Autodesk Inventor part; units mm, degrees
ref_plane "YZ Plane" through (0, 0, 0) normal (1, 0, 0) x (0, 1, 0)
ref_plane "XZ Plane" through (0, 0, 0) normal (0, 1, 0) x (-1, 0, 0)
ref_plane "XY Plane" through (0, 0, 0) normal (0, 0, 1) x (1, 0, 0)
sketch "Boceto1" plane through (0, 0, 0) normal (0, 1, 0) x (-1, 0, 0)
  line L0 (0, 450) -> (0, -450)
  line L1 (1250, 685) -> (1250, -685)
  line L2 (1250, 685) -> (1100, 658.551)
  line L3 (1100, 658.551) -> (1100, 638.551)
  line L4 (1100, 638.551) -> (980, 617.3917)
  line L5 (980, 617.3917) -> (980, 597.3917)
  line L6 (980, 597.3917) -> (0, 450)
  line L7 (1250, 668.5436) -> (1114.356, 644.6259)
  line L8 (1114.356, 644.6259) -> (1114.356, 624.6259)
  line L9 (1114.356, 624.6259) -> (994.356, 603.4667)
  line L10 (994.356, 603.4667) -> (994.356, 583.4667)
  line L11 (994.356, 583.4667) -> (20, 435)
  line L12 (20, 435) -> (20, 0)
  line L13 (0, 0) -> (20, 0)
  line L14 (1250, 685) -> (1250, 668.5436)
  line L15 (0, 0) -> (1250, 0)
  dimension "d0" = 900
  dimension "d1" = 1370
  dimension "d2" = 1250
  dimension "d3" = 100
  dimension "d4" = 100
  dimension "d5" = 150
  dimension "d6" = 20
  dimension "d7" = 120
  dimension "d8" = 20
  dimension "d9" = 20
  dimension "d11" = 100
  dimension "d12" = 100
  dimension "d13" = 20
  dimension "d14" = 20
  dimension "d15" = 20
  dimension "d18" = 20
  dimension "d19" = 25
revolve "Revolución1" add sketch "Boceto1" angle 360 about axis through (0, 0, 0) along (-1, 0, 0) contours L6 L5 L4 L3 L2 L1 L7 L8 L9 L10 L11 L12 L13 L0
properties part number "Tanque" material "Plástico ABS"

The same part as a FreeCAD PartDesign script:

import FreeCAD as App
import Part
import Sketcher
from FreeCAD import Vector
Q = App.Units.Quantity

doc = App.newDocument("Part")
body = doc.addObject("PartDesign::Body", "Body")

sketch1 = body.newObject("Sketcher::SketchObject", "Sketch")
sketch1.AttachmentSupport = (doc.getObject("XZ_Plane"), [""])
sketch1.MapMode = "FlatFace"
sketch1.addGeometry(Part.LineSegment(Vector(-980, 597, 0), Vector(0, 450, 0)), False)
sketch1.addGeometry(Part.LineSegment(Vector(0, 450, 0), Vector(0, 0, 0)), False)
sketch1.addGeometry(Part.LineSegment(Vector(0, 0, 0), Vector(-20, 0, 0)), False)
sketch1.addGeometry(Part.LineSegment(Vector(-20, 0, 0), Vector(-20, 435, 0)), False)
sketch1.addGeometry(Part.LineSegment(Vector(-20, 435, 0), Vector(-994, 583, 0)), False)
sketch1.addGeometry(Part.LineSegment(Vector(-994, 583, 0), Vector(-994, 603, 0)), False)
sketch1.addGeometry(Part.LineSegment(Vector(-994, 603, 0), Vector(-1114, 625, 0)), False)
sketch1.addGeometry(Part.LineSegment(Vector(-1114, 625, 0), Vector(-1114, 645, 0)), False)
sketch1.addGeometry(Part.LineSegment(Vector(-1114, 645, 0), Vector(-1250, 669, 0)), False)
sketch1.addGeometry(Part.LineSegment(Vector(-1250, 669, 0), Vector(-1250, 685, 0)), False)
sketch1.addGeometry(Part.LineSegment(Vector(-1250, 685, 0), Vector(-1100, 659, 0)), False)
sketch1.addGeometry(Part.LineSegment(Vector(-1100, 659, 0), Vector(-1100, 639, 0)), False)
sketch1.addGeometry(Part.LineSegment(Vector(-1100, 639, 0), Vector(-980, 617, 0)), False)
sketch1.addGeometry(Part.LineSegment(Vector(-980, 617, 0), Vector(-980, 597, 0)), False)
sketch1.addConstraint(Sketcher.Constraint("Coincident", 0, 2, 1, 1))
sketch1.addConstraint(Sketcher.Constraint("Coincident", 1, 2, 2, 1))
sketch1.addConstraint(Sketcher.Constraint("Coincident", 2, 2, 3, 1))
sketch1.addConstraint(Sketcher.Constraint("Coincident", 3, 2, 4, 1))
sketch1.addConstraint(Sketcher.Constraint("Coincident", 4, 2, 5, 1))
sketch1.addConstraint(Sketcher.Constraint("Coincident", 5, 2, 6, 1))
sketch1.addConstraint(Sketcher.Constraint("Coincident", 6, 2, 7, 1))
sketch1.addConstraint(Sketcher.Constraint("Coincident", 7, 2, 8, 1))
sketch1.addConstraint(Sketcher.Constraint("Coincident", 8, 2, 9, 1))
sketch1.addConstraint(Sketcher.Constraint("Coincident", 9, 2, 10, 1))
sketch1.addConstraint(Sketcher.Constraint("Coincident", 10, 2, 11, 1))
sketch1.addConstraint(Sketcher.Constraint("Coincident", 11, 2, 12, 1))
sketch1.addConstraint(Sketcher.Constraint("Coincident", 12, 2, 13, 1))
sketch1.addConstraint(Sketcher.Constraint("Coincident", 13, 2, 0, 1))
sketch1.addConstraint(Sketcher.Constraint("Vertical", 1))
sketch1.addConstraint(Sketcher.Constraint("Horizontal", 2))
sketch1.addConstraint(Sketcher.Constraint("Vertical", 3))
sketch1.addConstraint(Sketcher.Constraint("Vertical", 5))
sketch1.addConstraint(Sketcher.Constraint("Vertical", 7))
sketch1.addConstraint(Sketcher.Constraint("Vertical", 9))
sketch1.addConstraint(Sketcher.Constraint("Vertical", 11))
sketch1.addConstraint(Sketcher.Constraint("Vertical", 13))
sketch1.addConstraint(Sketcher.Constraint("Coincident", 1, 2, -1, 1))
sketch1.addConstraint(Sketcher.Constraint("Parallel", 6, 8))
sketch1.addConstraint(Sketcher.Constraint("Parallel", 8, 10))
sketch1.addConstraint(Sketcher.Constraint("Parallel", 10, 12))
sketch1.addConstraint(Sketcher.Constraint("Equal", 2, 5))
sketch1.addConstraint(Sketcher.Constraint("Equal", 5, 7))
sketch1.addConstraint(Sketcher.Constraint("Equal", 7, 11))
sketch1.addConstraint(Sketcher.Constraint("Equal", 11, 13))
sketch1.addConstraint(Sketcher.Constraint("Equal", 6, 12))
sketch1.addConstraint(Sketcher.Constraint("DistanceX", 2, 2, 2, 1, 20.0))
sketch1.addConstraint(Sketcher.Constraint("DistanceX", 8, 2, -1, 1, 1250.0))
sketch1.addConstraint(Sketcher.Constraint("DistanceX", 6, 2, 5, 2, 120.0))
sketch1.addConstraint(Sketcher.Constraint("DistanceX", 8, 2, 10, 2, 150.0))
sketch1.addConstraint(Sketcher.Constraint("DistanceY", 1, 2, 1, 1, 450.0))
sketch1.addConstraint(Sketcher.Constraint("DistanceY", 3, 1, 3, 2, 435.0))
sketch1.addConstraint(Sketcher.Constraint("Angle", 6, Q("170 deg")))
sketch1.addConstraint(Sketcher.Constraint("DistanceY", -1, 1, 9, 2, 685.0))
sketch1.addConstraint(Sketcher.Constraint("DistanceY", 9, 1, 9, 2, 16.4564))
sketch1.addConstraint(Sketcher.Constraint("DistanceX", 4, 2, -1, 1, 994.356))
revolution = body.newObject("PartDesign::Revolution", "Revolution")
revolution.Profile = sketch1
revolution.ReferenceAxis = (sketch1, ["H_Axis"])
revolution.Angle = 360

doc.recompute()
